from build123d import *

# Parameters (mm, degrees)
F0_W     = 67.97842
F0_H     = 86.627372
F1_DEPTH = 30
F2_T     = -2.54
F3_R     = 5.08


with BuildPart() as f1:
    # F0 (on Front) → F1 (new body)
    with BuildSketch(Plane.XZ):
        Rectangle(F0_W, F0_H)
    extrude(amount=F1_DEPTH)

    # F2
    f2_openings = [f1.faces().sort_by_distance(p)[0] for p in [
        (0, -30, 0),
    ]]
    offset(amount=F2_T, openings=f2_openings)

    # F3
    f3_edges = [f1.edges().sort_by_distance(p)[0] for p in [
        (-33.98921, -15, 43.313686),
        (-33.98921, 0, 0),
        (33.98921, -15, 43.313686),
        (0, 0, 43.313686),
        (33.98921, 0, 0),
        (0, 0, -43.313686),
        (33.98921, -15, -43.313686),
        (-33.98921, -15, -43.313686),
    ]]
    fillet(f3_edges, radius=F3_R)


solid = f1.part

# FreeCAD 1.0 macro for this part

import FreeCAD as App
import Part
import Sketcher

V = App.Vector
Q = App.Units.Quantity


def edges_at(feature, points):
    """Names of the edges that pass closest to the given points."""
    edges = feature.Shape.Edges
    near = lambda p: min(range(len(edges)), key=lambda i: edges[i].distToShape(Part.Vertex(*p))[0])
    return sorted({f"Edge{near(p) + 1}" for p in points})


def faces_at(feature, points):
    """Names of the faces that lie closest to the given points."""
    faces = feature.Shape.Faces
    near = lambda p: min(range(len(faces)), key=lambda i: faces[i].distToShape(Part.Vertex(*p))[0])
    return sorted({f"Face{near(p) + 1}" for p in points})


def add_polygon(sketch, points):
    """Adds a closed chain of lines whose ends are joined by coincident constraints."""
    first, n = sketch.GeometryCount, len(points)
    for a, b in zip(points, points[1:] + points[:1]):
        sketch.addGeometry(Part.LineSegment(App.Vector(*a, 0), App.Vector(*b, 0)), False)
    for i in range(n):
        sketch.addConstraint(Sketcher.Constraint("Coincident", first + i, 2, first + (i + 1) % n, 1))

doc = App.newDocument("Part")
body = doc.addObject("PartDesign::Body", "Body")

sketch1 = body.newObject("Sketcher::SketchObject", "Sketch")
sketch1.AttachmentSupport = (doc.getObject("XZ_Plane"), [""])
sketch1.MapMode = "FlatFace"
add_polygon(sketch1, [(-33.98921, 43.313686), (-33.98921, -43.313686), (33.98921, -43.313686), (33.98921, 43.313686)])
sketch1.addConstraint(Sketcher.Constraint("Vertical", 0))
sketch1.addConstraint(Sketcher.Constraint("Horizontal", 1))
sketch1.addConstraint(Sketcher.Constraint("Vertical", 2))
sketch1.addConstraint(Sketcher.Constraint("Horizontal", 3))
sketch1.addConstraint(Sketcher.Constraint("Symmetric", 0, 2, 2, 2, -1, 1))
sketch1.addConstraint(Sketcher.Constraint("DistanceX", 1, 1, 1, 2, 67.97842))
sketch1.addConstraint(Sketcher.Constraint("DistanceY", 0, 2, 0, 1, 86.627372))
pad1 = body.newObject("PartDesign::Pad", "Pad")
pad1.Profile = sketch1
pad1.Length = 30
doc.recompute()

thickness = body.newObject("PartDesign::Thickness", "Thickness")
thickness.Base = (pad1, faces_at(pad1, [(0, -30, 0)]))
thickness.Value = Q("0.1 in")
thickness.Reversed = True
thickness.Join = "Arc"
doc.recompute()

fillet = body.newObject("PartDesign::Fillet", "Fillet")
fillet.Base = (thickness, edges_at(thickness, [
    (-33.989, -15, 43.314),
    (-33.989, 0, 0),
    (33.989, -15, 43.314),
    (0, 0, 43.314),
    (33.989, 0, 0),
    (0, 0, -43.314),
    (33.989, -15, -43.314),
    (-33.989, -15, -43.314),
]))
fillet.Radius = Q("0.2 in")

doc.recompute()
